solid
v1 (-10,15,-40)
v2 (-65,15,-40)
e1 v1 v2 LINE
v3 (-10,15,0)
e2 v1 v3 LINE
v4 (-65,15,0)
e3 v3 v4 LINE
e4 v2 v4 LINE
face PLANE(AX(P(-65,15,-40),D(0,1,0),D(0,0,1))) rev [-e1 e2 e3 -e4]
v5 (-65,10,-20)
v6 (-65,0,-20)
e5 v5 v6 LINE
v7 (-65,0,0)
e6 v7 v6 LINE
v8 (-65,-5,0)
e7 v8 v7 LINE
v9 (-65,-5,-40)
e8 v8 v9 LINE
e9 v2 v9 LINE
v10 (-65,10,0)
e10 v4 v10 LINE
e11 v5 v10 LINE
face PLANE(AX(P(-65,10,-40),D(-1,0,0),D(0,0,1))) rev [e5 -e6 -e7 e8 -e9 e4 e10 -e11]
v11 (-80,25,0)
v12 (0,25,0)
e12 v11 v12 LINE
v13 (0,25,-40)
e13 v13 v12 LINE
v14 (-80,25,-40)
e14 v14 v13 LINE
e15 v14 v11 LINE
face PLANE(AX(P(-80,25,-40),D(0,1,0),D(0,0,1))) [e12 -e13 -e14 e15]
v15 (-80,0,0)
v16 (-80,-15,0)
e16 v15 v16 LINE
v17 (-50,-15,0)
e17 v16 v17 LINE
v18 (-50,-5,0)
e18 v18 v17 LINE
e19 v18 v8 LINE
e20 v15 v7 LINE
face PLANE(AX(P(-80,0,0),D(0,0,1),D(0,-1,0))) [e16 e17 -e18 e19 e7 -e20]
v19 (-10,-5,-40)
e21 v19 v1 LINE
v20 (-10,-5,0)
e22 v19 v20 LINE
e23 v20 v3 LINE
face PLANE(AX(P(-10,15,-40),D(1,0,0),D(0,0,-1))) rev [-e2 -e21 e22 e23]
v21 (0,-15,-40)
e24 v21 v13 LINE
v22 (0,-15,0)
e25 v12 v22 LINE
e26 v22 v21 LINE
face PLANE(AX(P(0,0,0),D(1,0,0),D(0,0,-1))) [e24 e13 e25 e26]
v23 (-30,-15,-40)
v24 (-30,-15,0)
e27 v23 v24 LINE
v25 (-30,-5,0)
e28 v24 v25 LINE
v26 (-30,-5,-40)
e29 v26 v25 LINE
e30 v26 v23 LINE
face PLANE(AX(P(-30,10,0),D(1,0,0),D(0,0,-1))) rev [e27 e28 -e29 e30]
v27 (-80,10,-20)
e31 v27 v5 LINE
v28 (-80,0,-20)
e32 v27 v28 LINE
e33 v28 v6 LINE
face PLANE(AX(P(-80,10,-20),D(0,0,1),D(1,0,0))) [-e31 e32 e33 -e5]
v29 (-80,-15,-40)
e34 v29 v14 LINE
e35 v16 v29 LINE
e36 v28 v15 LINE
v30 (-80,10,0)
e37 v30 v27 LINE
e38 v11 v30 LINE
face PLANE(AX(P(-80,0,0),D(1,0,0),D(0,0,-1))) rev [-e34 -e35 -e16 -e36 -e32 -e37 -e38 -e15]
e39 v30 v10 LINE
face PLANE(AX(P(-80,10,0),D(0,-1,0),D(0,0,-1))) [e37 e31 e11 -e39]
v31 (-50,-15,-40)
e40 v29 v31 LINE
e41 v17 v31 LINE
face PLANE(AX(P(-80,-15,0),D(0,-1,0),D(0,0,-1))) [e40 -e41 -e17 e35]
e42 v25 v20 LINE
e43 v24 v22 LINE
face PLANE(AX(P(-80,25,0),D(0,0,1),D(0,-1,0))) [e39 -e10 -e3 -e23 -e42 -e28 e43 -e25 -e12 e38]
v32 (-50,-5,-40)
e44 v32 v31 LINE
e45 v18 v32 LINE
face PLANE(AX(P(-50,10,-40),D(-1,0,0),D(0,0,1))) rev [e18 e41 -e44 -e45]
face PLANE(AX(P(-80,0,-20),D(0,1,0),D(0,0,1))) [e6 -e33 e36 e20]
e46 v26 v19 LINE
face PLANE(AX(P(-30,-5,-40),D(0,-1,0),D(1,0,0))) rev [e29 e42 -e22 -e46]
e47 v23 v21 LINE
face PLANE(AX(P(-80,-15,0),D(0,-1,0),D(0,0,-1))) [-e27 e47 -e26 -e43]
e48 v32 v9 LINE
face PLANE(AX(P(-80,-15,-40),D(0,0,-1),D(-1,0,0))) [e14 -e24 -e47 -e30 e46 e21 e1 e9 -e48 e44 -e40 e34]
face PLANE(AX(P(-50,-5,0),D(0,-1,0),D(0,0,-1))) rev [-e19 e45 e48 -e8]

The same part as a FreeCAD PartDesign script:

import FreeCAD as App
import Part
import Sketcher
from FreeCAD import Vector
Q = App.Units.Quantity

doc = App.newDocument("Part")
body = doc.addObject("PartDesign::Body", "Body")

# Sketch on YZ plane
sketch1 = body.newObject("Sketcher::SketchObject", "Sketch")
sketch1.AttachmentSupport = (doc.getObject("YZ_Plane"), [""])
sketch1.MapMode = "FlatFace"
sketch1.addGeometry([
    Part.LineSegment(Vector(0, 0, 0), Vector(-15, 0, 0)),  # 0
    Part.LineSegment(Vector(-15, 0, 0), Vector(-15, -40, 0)),  # 1
    Part.LineSegment(Vector(-15, -40, 0), Vector(25, -40, 0)),  # 2
    Part.LineSegment(Vector(25, -40, 0), Vector(25, 0, 0)),  # 3
    Part.LineSegment(Vector(25, 0, 0), Vector(10, 0, 0)),  # 4
    Part.LineSegment(Vector(10, 0, 0), Vector(10, -20, 0)),  # 5
    Part.LineSegment(Vector(10, -20, 0), Vector(0, -20, 0)),  # 6
    Part.LineSegment(Vector(0, -20, 0), Vector(0, 0, 0)),  # 7
], False)
sketch1.addConstraint([
    Sketcher.Constraint("Coincident", 0, 2, 1, 1),
    Sketcher.Constraint("Coincident", 1, 2, 2, 1),
    Sketcher.Constraint("Coincident", 2, 2, 3, 1),
    Sketcher.Constraint("Coincident", 3, 2, 4, 1),
    Sketcher.Constraint("Coincident", 4, 2, 5, 1),
    Sketcher.Constraint("Coincident", 5, 2, 6, 1),
    Sketcher.Constraint("Coincident", 6, 2, 7, 1),
    Sketcher.Constraint("Coincident", 7, 2, 0, 1),
    Sketcher.Constraint("Horizontal", 0),
    Sketcher.Constraint("Vertical", 1),
    Sketcher.Constraint("Horizontal", 2),
    Sketcher.Constraint("Vertical", 3),
    Sketcher.Constraint("Horizontal", 4),
    Sketcher.Constraint("Vertical", 5),
    Sketcher.Constraint("Horizontal", 6),
    Sketcher.Constraint("Vertical", 7),
    Sketcher.Constraint("Coincident", 7, 2, -1, 1),
    Sketcher.Constraint("PointOnObject", 3, 2, -1),
    Sketcher.Constraint("Equal", 0, 4),
    Sketcher.Constraint("Equal", 2, 1),
    Sketcher.Constraint("DistanceX", 0, 2, 0, 1, Q("15 mm")),
    Sketcher.Constraint("DistanceX", 2, 1, 2, 2, Q("40 mm")),
    Sketcher.Constraint("DistanceY", 5, 2, 5, 1, Q("20 mm")),
])
pad1 = body.newObject("PartDesign::Pad", "Pad")
pad1.Profile = sketch1
pad1.Length = 80
pad1.Reversed = True

# Sketch on XZ plane
sketch2 = body.newObject("Sketcher::SketchObject", "Sketch001")
sketch2.AttachmentSupport = (doc.getObject("XZ_Plane"), [""])
sketch2.MapMode = "FlatFace"
sketch2.AttachmentOffset = App.Placement(Vector(0, 0, 15), App.Rotation())
sketch2.addGeometry([
    Part.LineSegment(Vector(-50, 0, 0), Vector(-50, -40, 0)),
    Part.LineSegment(Vector(-50, -40, 0), Vector(-30, -40, 0)),
    Part.LineSegment(Vector(-30, -40, 0), Vector(-30, 0, 0)),
    Part.LineSegment(Vector(-30, 0, 0), Vector(-50, 0, 0)),
], False)
sketch2.addConstraint([
    Sketcher.Constraint("Coincident", 0, 2, 1, 1),
    Sketcher.Constraint("Coincident", 1, 2, 2, 1),
    Sketcher.Constraint("Coincident", 2, 2, 3, 1),
    Sketcher.Constraint("Coincident", 3, 2, 0, 1),
    Sketcher.Constraint("Vertical", 0),
    Sketcher.Constraint("Horizontal", 1),
    Sketcher.Constraint("Vertical", 2),
    Sketcher.Constraint("Horizontal", 3),
    Sketcher.Constraint("PointOnObject", 2, 2, -1),
    Sketcher.Constraint("DistanceX", 1, 1, 1, 2, Q("20 mm")),
    Sketcher.Constraint("DistanceY", 0, 2, 0, 1, Q("40 mm")),
    Sketcher.Constraint("DistanceX", 0, 2, -1, 1, Q("50 mm")),
])
pocket1 = body.newObject("PartDesign::Pocket", "Pocket")
pocket1.Profile = sketch2
pocket1.Length = 25

# Sketch on XY plane
sketch3 = body.newObject("Sketcher::SketchObject", "Sketch002")
sketch3.AttachmentSupport = (doc.getObject("XY_Plane"), [""])
sketch3.MapMode = "FlatFace"
sketch3.addGeometry([
    Part.LineSegment(Vector(-65, 15, 0), Vector(-65, 10, 0)),
    Part.LineSegment(Vector(-65, 10, 0), Vector(-10, 10, 0)),
    Part.LineSegment(Vector(-10, 10, 0), Vector(-10, 15, 0)),
    Part.LineSegment(Vector(-10, 15, 0), Vector(-65, 15, 0)),
], False)
sketch3.addConstraint([
    Sketcher.Constraint("Coincident", 0, 2, 1, 1),
    Sketcher.Constraint("Coincident", 1, 2, 2, 1),
    Sketcher.Constraint("Coincident", 2, 2, 3, 1),
    Sketcher.Constraint("Coincident", 3, 2, 0, 1),
    Sketcher.Constraint("Vertical", 0),
    Sketcher.Constraint("Horizontal", 1),
    Sketcher.Constraint("Vertical", 2),
    Sketcher.Constraint("Horizontal", 3),
    Sketcher.Constraint("DistanceX", 1, 1, 1, 2, Q("55 mm")),
    Sketcher.Constraint("DistanceY", 0, 2, 0, 1, Q("5 mm")),
    Sketcher.Constraint("DistanceX", 0, 2, -1, 1, Q("65 mm")),
    Sketcher.Constraint("DistanceY", -1, 1, 0, 2, Q("10 mm")),
])
pocket2 = body.newObject("PartDesign::Pocket", "Pocket001")
pocket2.Profile = sketch3
pocket2.Length = 40

# Sketch on XY plane
sketch4 = body.newObject("Sketcher::SketchObject", "Sketch003")
sketch4.AttachmentSupport = (doc.getObject("XY_Plane"), [""])
sketch4.MapMode = "FlatFace"
sketch4.addGeometry([
    Part.LineSegment(Vector(-30, 0, 0), Vector(-30, -5, 0)),
    Part.LineSegment(Vector(-30, -5, 0), Vector(-10, -5, 0)),
    Part.LineSegment(Vector(-10, -5, 0), Vector(-10, 0, 0)),
    Part.LineSegment(Vector(-10, 0, 0), Vector(-30, 0, 0)),
], False)
sketch4.addConstraint([
    Sketcher.Constraint("Coincident", 0, 2, 1, 1),
    Sketcher.Constraint("Coincident", 1, 2, 2, 1),
    Sketcher.Constraint("Coincident", 2, 2, 3, 1),
    Sketcher.Constraint("Coincident", 3, 2, 0, 1),
    Sketcher.Constraint("Vertical", 0),
    Sketcher.Constraint("Horizontal", 1),
    Sketcher.Constraint("Vertical", 2),
    Sketcher.Constraint("Horizontal", 3),
    Sketcher.Constraint("PointOnObject", 2, 2, -1),
    Sketcher.Constraint("DistanceX", 1, 1, 1, 2, Q("20 mm")),
    Sketcher.Constraint("DistanceY", 0, 2, 0, 1, Q("5 mm")),
    Sketcher.Constraint("DistanceX", 0, 2, -1, 1, Q("30 mm")),
])
pocket3 = body.newObject("PartDesign::Pocket", "Pocket002")
pocket3.Profile = sketch4
pocket3.Length = 40

# Sketch on XY plane
sketch5 = body.newObject("Sketcher::SketchObject", "Sketch004")
sketch5.AttachmentSupport = (doc.getObject("XY_Plane"), [""])
sketch5.MapMode = "FlatFace"
sketch5.AttachmentOffset = App.Placement(Vector(0, 0, -20), App.Rotation())
sketch5.addGeometry([
    Part.LineSegment(Vector(-30, 10, 0), Vector(-30, 0, 0)),
    Part.LineSegment(Vector(-30, 0, 0), Vector(-10, 0, 0)),
    Part.LineSegment(Vector(-10, 0, 0), Vector(-10, 10, 0)),
    Part.LineSegment(Vector(-10, 10, 0), Vector(-30, 10, 0)),
], False)
sketch5.addConstraint([
    Sketcher.Constraint("Coincident", 0, 2, 1, 1),
    Sketcher.Constraint("Coincident", 1, 2, 2, 1),
    Sketcher.Constraint("Coincident", 2, 2, 3, 1),
    Sketcher.Constraint("Coincident", 3, 2, 0, 1),
    Sketcher.Constraint("Vertical", 0),
    Sketcher.Constraint("Horizontal", 1),
    Sketcher.Constraint("Vertical", 2),
    Sketcher.Constraint("Horizontal", 3),
    Sketcher.Constraint("PointOnObject", 0, 2, -1),
    Sketcher.Constraint("DistanceX", 1, 1, 1, 2, Q("20 mm")),
    Sketcher.Constraint("DistanceY", 0, 2, 0, 1, Q("10 mm")),
    Sketcher.Constraint("DistanceX", 0, 2, -1, 1, Q("30 mm")),
])
pocket4 = body.newObject("PartDesign::Pocket", "Pocket003")
pocket4.Profile = sketch5
pocket4.Length = 20

# Sketch on XY plane
sketch6 = body.newObject("Sketcher::SketchObject", "Sketch005")
sketch6.AttachmentSupport = (doc.getObject("XY_Plane"), [""])
sketch6.MapMode = "FlatFace"
sketch6.AttachmentOffset = App.Placement(Vector(0, 0, -20), App.Rotation())
sketch6.addGeometry([
    Part.LineSegment(Vector(-10, 10, 0), Vector(-10, 0, 0)),
    Part.LineSegment(Vector(-10, 0, 0), Vector(0, 0, 0)),
    Part.LineSegment(Vector(0, 0, 0), Vector(0, 10, 0)),
    Part.LineSegment(Vector(0, 10, 0), Vector(-10, 10, 0)),
], False)
sketch6.addConstraint([
    Sketcher.Constraint("Coincident", 0, 2, 1, 1),
    Sketcher.Constraint("Coincident", 1, 2, 2, 1),
    Sketcher.Constraint("Coincident", 2, 2, 3, 1),
    Sketcher.Constraint("Coincident", 3, 2, 0, 1),
    Sketcher.Constraint("Vertical", 0),
    Sketcher.Constraint("Horizontal", 1),
    Sketcher.Constraint("Vertical", 2),
    Sketcher.Constraint("Horizontal", 3),
    Sketcher.Constraint("Coincident", 1, 2, -1, 1),
    Sketcher.Constraint("Equal", 3, 0),
    Sketcher.Constraint("DistanceX", 1, 1, 1, 2, Q("10 mm")),
])
pad2 = body.newObject("PartDesign::Pad", "Pad001")
pad2.Profile = sketch6
pad2.Length = 20

# Sketch on XY plane
sketch7 = body.newObject("Sketcher::SketchObject", "Sketch006")
sketch7.AttachmentSupport = (doc.getObject("XY_Plane"), [""])
sketch7.MapMode = "FlatFace"
sketch7.AttachmentOffset = App.Placement(Vector(0, 0, -20), App.Rotation())
sketch7.addGeometry([
    Part.LineSegment(Vector(-65, 10, 0), Vector(-65, 0, 0)),
    Part.LineSegment(Vector(-65, 0, 0), Vector(-50, 0, 0)),
    Part.LineSegment(Vector(-50, 0, 0), Vector(-50, 10, 0)),
    Part.LineSegment(Vector(-50, 10, 0), Vector(-65, 10, 0)),
], False)
sketch7.addConstraint([
    Sketcher.Constraint("Coincident", 0, 2, 1, 1),
    Sketcher.Constraint("Coincident", 1, 2, 2, 1),
    Sketcher.Constraint("Coincident", 2, 2, 3, 1),
    Sketcher.Constraint("Coincident", 3, 2, 0, 1),
    Sketcher.Constraint("Vertical", 0),
    Sketcher.Constraint("Horizontal", 1),
    Sketcher.Constraint("Vertical", 2),
    Sketcher.Constraint("Horizontal", 3),
    Sketcher.Constraint("PointOnObject", 0, 2, -1),
    Sketcher.Constraint("DistanceX", 1, 1, 1, 2, Q("15 mm")),
    Sketcher.Constraint("DistanceY", 0, 2, 0, 1, Q("10 mm")),
    Sketcher.Constraint("DistanceX", 0, 2, -1, 1, Q("65 mm")),
])
pocket5 = body.newObject("PartDesign::Pocket", "Pocket004")
pocket5.Profile = sketch7
pocket5.Length = 20

# Sketch on XY plane
sketch8 = body.newObject("Sketcher::SketchObject", "Sketch007")
sketch8.AttachmentSupport = (doc.getObject("XY_Plane"), [""])
sketch8.MapMode = "FlatFace"
sketch8.AttachmentOffset = App.Placement(Vector(0, 0, -40), App.Rotation())
sketch8.addGeometry([
    Part.LineSegment(Vector(-50, 0, 0), Vector(-50, -5, 0)),
    Part.LineSegment(Vector(-50, -5, 0), Vector(-65, -5, 0)),
    Part.LineSegment(Vector(-65, -5, 0), Vector(-65, 0, 0)),
    Part.LineSegment(Vector(-65, 0, 0), Vector(-50, 0, 0)),
], False)
sketch8.addConstraint([
    Sketcher.Constraint("Coincident", 0, 2, 1, 1),
    Sketcher.Constraint("Coincident", 1, 2, 2, 1),
    Sketcher.Constraint("Coincident", 2, 2, 3, 1),
    Sketcher.Constraint("Coincident", 3, 2, 0, 1),
    Sketcher.Constraint("Vertical", 0),
    Sketcher.Constraint("Horizontal", 1),
    Sketcher.Constraint("Vertical", 2),
    Sketcher.Constraint("Horizontal", 3),
    Sketcher.Constraint("PointOnObject", 2, 2, -1),
    Sketcher.Constraint("DistanceX", 1, 2, 1, 1, Q("15 mm")),
    Sketcher.Constraint("DistanceY", 0, 2, 0, 1, Q("5 mm")),
    Sketcher.Constraint("DistanceX", 0, 2, -1, 1, Q("50 mm")),
])
pocket6 = body.newObject("PartDesign::Pocket", "Pocket005")
pocket6.Profile = sketch8
pocket6.Length = 40
pocket6.Reversed = True

doc.recompute()
